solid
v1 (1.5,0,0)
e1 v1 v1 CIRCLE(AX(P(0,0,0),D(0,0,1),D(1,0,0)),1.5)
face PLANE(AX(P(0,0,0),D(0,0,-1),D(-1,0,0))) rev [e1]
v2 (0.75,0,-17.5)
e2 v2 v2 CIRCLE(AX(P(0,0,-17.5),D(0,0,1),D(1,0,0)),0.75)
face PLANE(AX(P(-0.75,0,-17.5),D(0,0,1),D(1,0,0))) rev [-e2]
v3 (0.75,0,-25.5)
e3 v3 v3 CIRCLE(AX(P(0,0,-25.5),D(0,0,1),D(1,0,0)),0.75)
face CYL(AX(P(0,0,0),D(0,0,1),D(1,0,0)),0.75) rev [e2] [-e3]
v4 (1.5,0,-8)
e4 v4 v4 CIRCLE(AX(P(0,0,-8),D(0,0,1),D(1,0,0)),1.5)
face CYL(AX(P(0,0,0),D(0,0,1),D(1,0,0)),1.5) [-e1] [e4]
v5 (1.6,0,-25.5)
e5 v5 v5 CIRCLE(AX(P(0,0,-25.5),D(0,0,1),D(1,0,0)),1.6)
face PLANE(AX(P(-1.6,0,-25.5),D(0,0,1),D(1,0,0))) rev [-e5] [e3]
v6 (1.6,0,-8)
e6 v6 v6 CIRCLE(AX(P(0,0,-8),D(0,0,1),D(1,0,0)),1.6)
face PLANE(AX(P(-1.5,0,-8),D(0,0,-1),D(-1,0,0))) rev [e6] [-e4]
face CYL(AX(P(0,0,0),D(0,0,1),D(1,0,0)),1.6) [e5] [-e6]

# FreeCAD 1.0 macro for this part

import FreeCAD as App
import Part
import Sketcher
from FreeCAD import Vector

doc = App.newDocument("Part")
params = doc.addObject("Spreadsheet::Sheet", "Params")
for row, (alias, value) in enumerate([
    ("sketch1_height", "8 mm"),
    ("sketch1_width", "1.5 mm"),
    ("sketch1_width2", "0.1 mm"),
    ("sketch1_height2", "17.5 mm"),
    ("sketch1_width3", "0.75 mm"),
    ("revolution_angle", "360 deg"),
], start=1):
    params.set(f"A{row}", alias)
    params.set(f"B{row}", "=" + value)
    params.setAlias(f"B{row}", alias)

body = doc.addObject("PartDesign::Body", "Body")

# Sketch on XZ plane
sketch1 = body.newObject("Sketcher::SketchObject", "Sketch")
sketch1.AttachmentSupport = (doc.getObject("XZ_Plane"), [""])
sketch1.MapMode = "FlatFace"
sketch1.addGeometry([
    Part.LineSegment(Vector(-1.5, 0, 0), Vector(0, 0, 0)),  # 0
    Part.LineSegment(Vector(0, 0, 0), Vector(0, -17.5, 0)),  # 1
    Part.LineSegment(Vector(0, -17.5, 0), Vector(-0.75, -17.5, 0)),  # 2
    Part.LineSegment(Vector(-0.75, -17.5, 0), Vector(-0.75, -25.5, 0)),  # 3
    Part.LineSegment(Vector(-0.75, -25.5, 0), Vector(-1.6, -25.5, 0)),  # 4
    Part.LineSegment(Vector(-1.6, -25.5, 0), Vector(-1.6, -8, 0)),  # 5
    Part.LineSegment(Vector(-1.6, -8, 0), Vector(-1.5, -8, 0)),  # 6
    Part.LineSegment(Vector(-1.5, -8, 0), Vector(-1.5, 0, 0)),  # 7
], False)
sketch1.addConstraint([
    Sketcher.Constraint("Coincident", 0, 2, 1, 1),
    Sketcher.Constraint("Coincident", 1, 2, 2, 1),
    Sketcher.Constraint("Coincident", 2, 2, 3, 1),
    Sketcher.Constraint("Coincident", 3, 2, 4, 1),
    Sketcher.Constraint("Coincident", 4, 2, 5, 1),
    Sketcher.Constraint("Coincident", 5, 2, 6, 1),
    Sketcher.Constraint("Coincident", 6, 2, 7, 1),
    Sketcher.Constraint("Coincident", 7, 2, 0, 1),
    Sketcher.Constraint("Horizontal", 0),
    Sketcher.Constraint("Vertical", 1),
    Sketcher.Constraint("Horizontal", 2),
    Sketcher.Constraint("Vertical", 3),
    Sketcher.Constraint("Horizontal", 4),
    Sketcher.Constraint("Vertical", 5),
    Sketcher.Constraint("Horizontal", 6),
    Sketcher.Constraint("Vertical", 7),
    Sketcher.Constraint("Coincident", 0, 2, -1, 1),
    Sketcher.Constraint("Equal", 1, 5),
    Sketcher.Constraint("DistanceY", 3, 2, 3, 1, 8.0),
    Sketcher.Constraint("DistanceX", 0, 1, 0, 2, 1.5),
    Sketcher.Constraint("DistanceX", 6, 1, 6, 2, 0.1),
    Sketcher.Constraint("DistanceY", 1, 2, 1, 1, 17.5),
    Sketcher.Constraint("DistanceX", 2, 2, 2, 1, 0.75),
])
sketch1.setExpression("Constraints[18]", "Params.sketch1_height")
sketch1.setExpression("Constraints[19]", "Params.sketch1_width")
sketch1.setExpression("Constraints[20]", "Params.sketch1_width2")
sketch1.setExpression("Constraints[21]", "Params.sketch1_height2")
sketch1.setExpression("Constraints[22]", "Params.sketch1_width3")
revolution = body.newObject("PartDesign::Revolution", "Revolution")
revolution.Profile = sketch1
revolution.ReferenceAxis = (sketch1, ["V_Axis"])
revolution.setExpression("Angle", "Params.revolution_angle")

doc.recompute()
